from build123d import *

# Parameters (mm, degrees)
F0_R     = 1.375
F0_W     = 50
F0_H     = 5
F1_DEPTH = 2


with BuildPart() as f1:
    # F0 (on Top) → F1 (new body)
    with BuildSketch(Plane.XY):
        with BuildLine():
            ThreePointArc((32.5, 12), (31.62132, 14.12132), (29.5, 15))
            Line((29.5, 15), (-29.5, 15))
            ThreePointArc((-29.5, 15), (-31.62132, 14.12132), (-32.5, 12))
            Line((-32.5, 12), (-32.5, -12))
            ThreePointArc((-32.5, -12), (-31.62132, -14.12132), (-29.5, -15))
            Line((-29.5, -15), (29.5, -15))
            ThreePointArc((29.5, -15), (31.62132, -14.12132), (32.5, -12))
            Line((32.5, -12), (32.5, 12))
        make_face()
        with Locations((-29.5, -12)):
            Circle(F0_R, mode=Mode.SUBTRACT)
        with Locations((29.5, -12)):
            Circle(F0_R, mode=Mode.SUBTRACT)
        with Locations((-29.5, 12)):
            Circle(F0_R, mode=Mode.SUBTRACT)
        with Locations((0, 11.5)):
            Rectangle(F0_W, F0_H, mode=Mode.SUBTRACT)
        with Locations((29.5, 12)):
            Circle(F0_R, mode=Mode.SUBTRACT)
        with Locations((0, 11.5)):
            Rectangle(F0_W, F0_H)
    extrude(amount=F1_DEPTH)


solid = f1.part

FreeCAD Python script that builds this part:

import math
import FreeCAD as App
import Part
import Sketcher
from FreeCAD import Vector

doc = App.newDocument("Part")
params = doc.addObject("Spreadsheet::Sheet", "Params")
for row, (alias, value) in enumerate([
    ("sketch1_radius", "3.000001 mm"),
    ("sketch1_diameter", "2.75 mm"),
    ("sketch1_width", "59 mm"),
    ("sketch1_height", "24 mm"),
    ("pad1_length", "2 mm"),
], start=1):
    params.set(f"A{row}", alias)
    params.set(f"B{row}", "=" + value)
    params.setAlias(f"B{row}", alias)

body = doc.addObject("PartDesign::Body", "Body")

# Sketch on XY plane
sketch1 = body.newObject("Sketcher::SketchObject", "Sketch")
sketch1.AttachmentSupport = (doc.getObject("XY_Plane"), [""])
sketch1.MapMode = "FlatFace"
sketch1.addGeometry([
    Part.ArcOfCircle(Part.Circle(Vector(29.499999, 11.999999, 0), Vector(0, 0, 1), 3.000001), math.radians(0.000022), math.radians(89.999978)),  # 0
    Part.LineSegment(Vector(29.5, 15, 0), Vector(-29.5, 15, 0)),  # 1
    Part.ArcOfCircle(Part.Circle(Vector(-29.499999, 11.999999, 0), Vector(0, 0, 1), 3.000001), math.radians(90.000022), math.radians(179.999978)),  # 2
    Part.LineSegment(Vector(-32.5, 12, 0), Vector(-32.5, -12, 0)),  # 3
    Part.ArcOfCircle(Part.Circle(Vector(-29.499999, -11.999999, 0), Vector(0, 0, 1), 3.000001), math.radians(-179.999978), math.radians(-90.000022)),  # 4
    Part.LineSegment(Vector(-29.5, -15, 0), Vector(29.5, -15, 0)),  # 5
    Part.ArcOfCircle(Part.Circle(Vector(29.499999, -11.999999, 0), Vector(0, 0, 1), 3.000001), math.radians(-89.999978), math.radians(-0.000022)),  # 6
    Part.LineSegment(Vector(32.5, -12, 0), Vector(32.5, 12, 0)),  # 7
    Part.Circle(Vector(-29.5, -12, 0), Vector(0, 0, 1), 1.375),  # 8
    Part.Circle(Vector(29.5, -12, 0), Vector(0, 0, 1), 1.375),  # 9
    Part.Circle(Vector(-29.5, 12, 0), Vector(0, 0, 1), 1.375),  # 10
    Part.Circle(Vector(29.5, 12, 0), Vector(0, 0, 1), 1.375),  # 11
], False)
sketch1.addConstraint([
    Sketcher.Constraint("Tangent", 0, 2, 1, 1),
    Sketcher.Constraint("Tangent", 1, 2, 2, 1),
    Sketcher.Constraint("Tangent", 2, 2, 3, 1),
    Sketcher.Constraint("Tangent", 3, 2, 4, 1),
    Sketcher.Constraint("Tangent", 4, 2, 5, 1),
    Sketcher.Constraint("Tangent", 5, 2, 6, 1),
    Sketcher.Constraint("Tangent", 6, 2, 7, 1),
    Sketcher.Constraint("Tangent", 7, 2, 0, 1),
    Sketcher.Constraint("Horizontal", 1),
    Sketcher.Constraint("Vertical", 3),
    Sketcher.Constraint("Horizontal", 5),
    Sketcher.Constraint("Vertical", 7),
    Sketcher.Constraint("Coincident", 8, 3, 4, 3),
    Sketcher.Constraint("Coincident", 9, 3, 6, 3),
    Sketcher.Constraint("Coincident", 10, 3, 2, 3),
    Sketcher.Constraint("Coincident", 11, 3, 0, 3),
    Sketcher.Constraint("Equal", 0, 2),
    Sketcher.Constraint("Equal", 2, 4),
    Sketcher.Constraint("Equal", 4, 6),
    Sketcher.Constraint("Equal", 8, 9),
    Sketcher.Constraint("Equal", 9, 10),
    Sketcher.Constraint("Equal", 10, 11),
    Sketcher.Constraint("Symmetric", 0, 3, 4, 3, -1, 1),
    Sketcher.Constraint("Radius", 0, 3.000001),
    Sketcher.Constraint("Diameter", 8, 2.75),
    Sketcher.Constraint("DistanceX", 1, 2, 1, 1, 59.0),
    Sketcher.Constraint("DistanceY", 3, 2, 3, 1, 24.0),
])
sketch1.setExpression("Constraints[23]", "Params.sketch1_radius")
sketch1.setExpression("Constraints[24]", "Params.sketch1_diameter")
sketch1.setExpression("Constraints[25]", "Params.sketch1_width")
sketch1.setExpression("Constraints[26]", "Params.sketch1_height")
pad1 = body.newObject("PartDesign::Pad", "Pad")
pad1.Profile = sketch1
pad1.setExpression("Length", "Params.pad1_length")

doc.recompute()
